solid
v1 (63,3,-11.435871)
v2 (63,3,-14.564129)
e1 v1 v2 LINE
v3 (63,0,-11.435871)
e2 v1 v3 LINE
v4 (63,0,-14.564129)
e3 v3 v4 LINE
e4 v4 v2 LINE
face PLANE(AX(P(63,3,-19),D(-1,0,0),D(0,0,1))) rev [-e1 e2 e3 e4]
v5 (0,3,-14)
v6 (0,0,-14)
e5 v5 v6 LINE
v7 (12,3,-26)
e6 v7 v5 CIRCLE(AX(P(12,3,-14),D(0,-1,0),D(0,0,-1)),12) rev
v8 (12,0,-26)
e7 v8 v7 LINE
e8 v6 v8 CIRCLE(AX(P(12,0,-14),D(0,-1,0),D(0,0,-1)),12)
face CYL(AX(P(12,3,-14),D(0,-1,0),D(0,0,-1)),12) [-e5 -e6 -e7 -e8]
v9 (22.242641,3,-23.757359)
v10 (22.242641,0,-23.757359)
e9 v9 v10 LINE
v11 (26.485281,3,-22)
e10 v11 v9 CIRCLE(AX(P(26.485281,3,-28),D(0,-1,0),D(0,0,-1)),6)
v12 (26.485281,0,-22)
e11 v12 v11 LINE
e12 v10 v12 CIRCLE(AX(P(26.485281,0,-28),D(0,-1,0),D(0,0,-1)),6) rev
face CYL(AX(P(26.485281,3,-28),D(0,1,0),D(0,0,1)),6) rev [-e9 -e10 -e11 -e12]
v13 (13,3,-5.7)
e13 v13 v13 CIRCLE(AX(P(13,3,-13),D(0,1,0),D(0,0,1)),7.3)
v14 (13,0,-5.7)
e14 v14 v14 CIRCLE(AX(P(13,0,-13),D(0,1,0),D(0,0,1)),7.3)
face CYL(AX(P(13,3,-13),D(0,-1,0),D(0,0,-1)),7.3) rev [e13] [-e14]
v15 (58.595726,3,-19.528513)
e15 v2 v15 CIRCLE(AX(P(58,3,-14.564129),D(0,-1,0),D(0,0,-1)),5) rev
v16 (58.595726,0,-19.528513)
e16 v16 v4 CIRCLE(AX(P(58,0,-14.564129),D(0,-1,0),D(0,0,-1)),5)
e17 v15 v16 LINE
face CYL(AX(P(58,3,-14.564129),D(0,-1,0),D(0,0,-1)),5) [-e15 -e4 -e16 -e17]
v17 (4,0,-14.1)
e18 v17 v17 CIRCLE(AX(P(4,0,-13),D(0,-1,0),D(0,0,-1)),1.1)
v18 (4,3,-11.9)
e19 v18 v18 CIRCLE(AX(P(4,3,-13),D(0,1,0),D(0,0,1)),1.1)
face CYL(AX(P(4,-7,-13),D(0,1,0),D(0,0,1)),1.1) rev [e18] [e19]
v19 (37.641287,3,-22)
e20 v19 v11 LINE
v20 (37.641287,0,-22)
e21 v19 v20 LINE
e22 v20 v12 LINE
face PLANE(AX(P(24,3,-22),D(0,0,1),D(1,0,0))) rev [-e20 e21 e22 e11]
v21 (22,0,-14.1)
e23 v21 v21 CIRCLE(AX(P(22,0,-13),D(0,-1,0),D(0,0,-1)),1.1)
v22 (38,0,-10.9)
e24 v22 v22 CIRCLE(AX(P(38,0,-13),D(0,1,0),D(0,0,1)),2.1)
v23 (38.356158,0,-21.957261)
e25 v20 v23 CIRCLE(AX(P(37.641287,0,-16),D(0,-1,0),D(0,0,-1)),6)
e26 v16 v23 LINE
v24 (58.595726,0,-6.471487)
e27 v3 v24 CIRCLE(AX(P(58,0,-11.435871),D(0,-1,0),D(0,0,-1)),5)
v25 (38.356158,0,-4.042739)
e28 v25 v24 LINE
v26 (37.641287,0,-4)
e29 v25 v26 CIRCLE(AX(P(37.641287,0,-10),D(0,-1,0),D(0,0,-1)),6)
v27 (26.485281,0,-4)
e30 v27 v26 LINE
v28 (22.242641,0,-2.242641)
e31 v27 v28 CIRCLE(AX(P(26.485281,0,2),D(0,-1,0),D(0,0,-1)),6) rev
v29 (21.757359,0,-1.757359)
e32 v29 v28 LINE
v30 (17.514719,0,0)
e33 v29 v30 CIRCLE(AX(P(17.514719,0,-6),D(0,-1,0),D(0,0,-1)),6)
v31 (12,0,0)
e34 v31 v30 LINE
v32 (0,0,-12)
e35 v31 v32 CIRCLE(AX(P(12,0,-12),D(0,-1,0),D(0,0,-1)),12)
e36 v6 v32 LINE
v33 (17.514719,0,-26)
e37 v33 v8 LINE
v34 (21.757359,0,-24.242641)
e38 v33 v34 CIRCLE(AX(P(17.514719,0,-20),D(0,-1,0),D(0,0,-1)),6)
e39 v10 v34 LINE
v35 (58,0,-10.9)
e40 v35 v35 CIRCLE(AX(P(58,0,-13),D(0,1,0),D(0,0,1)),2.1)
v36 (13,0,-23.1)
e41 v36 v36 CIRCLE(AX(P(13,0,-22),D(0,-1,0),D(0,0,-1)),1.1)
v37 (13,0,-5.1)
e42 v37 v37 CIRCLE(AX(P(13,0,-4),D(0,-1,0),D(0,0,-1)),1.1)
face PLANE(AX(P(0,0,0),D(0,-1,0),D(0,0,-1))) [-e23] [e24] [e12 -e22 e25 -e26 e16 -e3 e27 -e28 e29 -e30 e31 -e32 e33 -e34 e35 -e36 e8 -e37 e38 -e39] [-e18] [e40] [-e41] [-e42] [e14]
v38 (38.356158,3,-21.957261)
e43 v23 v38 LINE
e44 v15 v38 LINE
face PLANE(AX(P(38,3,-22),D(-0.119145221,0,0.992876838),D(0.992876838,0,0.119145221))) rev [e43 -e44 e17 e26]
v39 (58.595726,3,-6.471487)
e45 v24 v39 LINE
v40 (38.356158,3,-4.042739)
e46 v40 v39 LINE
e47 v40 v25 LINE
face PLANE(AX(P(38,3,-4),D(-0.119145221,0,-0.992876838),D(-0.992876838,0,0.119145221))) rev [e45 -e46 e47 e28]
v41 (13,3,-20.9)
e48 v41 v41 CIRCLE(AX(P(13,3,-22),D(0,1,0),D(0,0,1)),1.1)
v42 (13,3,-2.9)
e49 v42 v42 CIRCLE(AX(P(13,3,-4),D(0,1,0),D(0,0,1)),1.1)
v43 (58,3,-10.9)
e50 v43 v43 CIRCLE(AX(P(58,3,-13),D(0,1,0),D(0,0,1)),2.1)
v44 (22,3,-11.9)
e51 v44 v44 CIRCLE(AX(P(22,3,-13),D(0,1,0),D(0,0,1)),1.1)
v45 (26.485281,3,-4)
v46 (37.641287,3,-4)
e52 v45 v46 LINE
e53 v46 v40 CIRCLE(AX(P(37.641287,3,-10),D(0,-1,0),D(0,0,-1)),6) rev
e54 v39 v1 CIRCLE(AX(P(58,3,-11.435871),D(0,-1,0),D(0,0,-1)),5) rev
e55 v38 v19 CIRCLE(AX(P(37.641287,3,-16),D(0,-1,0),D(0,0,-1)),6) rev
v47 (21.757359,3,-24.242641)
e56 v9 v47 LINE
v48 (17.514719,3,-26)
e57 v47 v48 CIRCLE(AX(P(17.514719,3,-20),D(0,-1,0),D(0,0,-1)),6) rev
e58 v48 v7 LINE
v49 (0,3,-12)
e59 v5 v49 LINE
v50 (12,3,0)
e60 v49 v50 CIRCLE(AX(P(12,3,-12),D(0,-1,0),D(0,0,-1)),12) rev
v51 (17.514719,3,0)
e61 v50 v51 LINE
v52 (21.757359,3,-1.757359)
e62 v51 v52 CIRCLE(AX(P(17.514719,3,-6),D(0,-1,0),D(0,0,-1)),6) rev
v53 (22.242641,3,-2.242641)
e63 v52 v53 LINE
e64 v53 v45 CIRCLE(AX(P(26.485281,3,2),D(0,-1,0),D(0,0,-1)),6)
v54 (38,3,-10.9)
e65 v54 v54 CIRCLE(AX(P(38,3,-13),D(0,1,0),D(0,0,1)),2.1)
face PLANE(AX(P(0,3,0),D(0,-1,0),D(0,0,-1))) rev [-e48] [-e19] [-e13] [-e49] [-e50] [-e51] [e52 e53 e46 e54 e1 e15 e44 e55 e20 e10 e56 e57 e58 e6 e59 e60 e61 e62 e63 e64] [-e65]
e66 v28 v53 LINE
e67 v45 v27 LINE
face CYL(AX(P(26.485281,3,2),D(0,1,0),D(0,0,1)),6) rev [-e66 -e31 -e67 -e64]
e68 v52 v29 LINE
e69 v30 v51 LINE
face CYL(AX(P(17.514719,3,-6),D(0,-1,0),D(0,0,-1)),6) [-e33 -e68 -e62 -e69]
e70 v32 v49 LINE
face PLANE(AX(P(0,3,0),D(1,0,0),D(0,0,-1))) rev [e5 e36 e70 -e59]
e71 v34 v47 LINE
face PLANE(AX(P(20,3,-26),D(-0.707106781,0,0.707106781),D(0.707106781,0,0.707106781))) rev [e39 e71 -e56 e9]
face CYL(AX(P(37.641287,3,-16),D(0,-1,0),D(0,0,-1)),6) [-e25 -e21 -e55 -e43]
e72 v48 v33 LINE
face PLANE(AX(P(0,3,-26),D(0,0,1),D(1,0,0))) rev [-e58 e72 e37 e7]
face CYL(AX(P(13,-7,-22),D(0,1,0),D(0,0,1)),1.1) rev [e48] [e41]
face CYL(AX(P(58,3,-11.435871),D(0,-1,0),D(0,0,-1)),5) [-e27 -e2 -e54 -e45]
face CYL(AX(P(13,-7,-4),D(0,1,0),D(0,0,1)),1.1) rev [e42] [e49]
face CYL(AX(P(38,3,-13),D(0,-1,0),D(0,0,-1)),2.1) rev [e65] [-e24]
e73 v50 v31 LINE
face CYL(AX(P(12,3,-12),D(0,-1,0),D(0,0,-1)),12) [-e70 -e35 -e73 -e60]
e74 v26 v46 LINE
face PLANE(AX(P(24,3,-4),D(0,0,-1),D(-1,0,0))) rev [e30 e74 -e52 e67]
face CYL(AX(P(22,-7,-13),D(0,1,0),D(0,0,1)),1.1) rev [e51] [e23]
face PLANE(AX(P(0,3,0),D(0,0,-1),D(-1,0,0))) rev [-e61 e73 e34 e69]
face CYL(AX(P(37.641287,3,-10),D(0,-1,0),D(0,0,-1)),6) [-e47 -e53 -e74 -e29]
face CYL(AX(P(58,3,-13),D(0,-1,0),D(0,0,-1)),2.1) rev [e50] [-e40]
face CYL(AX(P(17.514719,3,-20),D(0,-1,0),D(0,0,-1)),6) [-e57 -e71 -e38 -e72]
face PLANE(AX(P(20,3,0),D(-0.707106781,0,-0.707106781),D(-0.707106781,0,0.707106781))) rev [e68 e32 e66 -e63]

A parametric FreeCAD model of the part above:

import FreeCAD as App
import Part
import Sketcher

V = App.Vector
Q = App.Units.Quantity


def edges_at(feature, points):
    """Names of the edges that pass closest to the given points."""
    edges = feature.Shape.Edges
    near = lambda p: min(range(len(edges)), key=lambda i: edges[i].distToShape(Part.Vertex(*p))[0])
    return sorted({f"Edge{near(p) + 1}" for p in points})

doc = App.newDocument("Part")
body = doc.addObject("PartDesign::Body", "Body")

# Sketch on XZ plane
sketch1 = body.newObject("Sketcher::SketchObject", "Sketch")
sketch1.AttachmentSupport = (doc.getObject("XZ_Plane"), [""])
sketch1.MapMode = "FlatFace"
sketch1.addGeometry(Part.LineSegment(V(24, -22, 0), V(20, -26, 0)), False)
sketch1.addGeometry(Part.LineSegment(V(20, -26, 0), V(0, -26, 0)), False)
sketch1.addGeometry(Part.LineSegment(V(0, -26, 0), V(0, 0, 0)), False)
sketch1.addGeometry(Part.LineSegment(V(0, 0, 0), V(20, 0, 0)), False)
sketch1.addGeometry(Part.LineSegment(V(20, 0, 0), V(24, -4, 0)), False)
sketch1.addGeometry(Part.LineSegment(V(24, -4, 0), V(38, -4, 0)), False)
sketch1.addGeometry(Part.LineSegment(V(38, -4, 0), V(63, -7, 0)), False)
sketch1.addGeometry(Part.LineSegment(V(63, -7, 0), V(63, -19, 0)), False)
sketch1.addGeometry(Part.LineSegment(V(63, -19, 0), V(38, -22, 0)), False)
sketch1.addGeometry(Part.LineSegment(V(38, -22, 0), V(24, -22, 0)), False)
sketch1.addGeometry(Part.Circle(V(58, -13, 0), V(0, 0, 1), 2.1), False)
sketch1.addGeometry(Part.Circle(V(38, -13, 0), V(0, 0, 1), 2.1), False)
sketch1.addGeometry(Part.Circle(V(13, -13, 0), V(0, 0, 1), 7.3), False)
sketch1.addConstraint(Sketcher.Constraint("Coincident", 0, 2, 1, 1))
sketch1.addConstraint(Sketcher.Constraint("Coincident", 1, 2, 2, 1))
sketch1.addConstraint(Sketcher.Constraint("Coincident", 2, 2, 3, 1))
sketch1.addConstraint(Sketcher.Constraint("Coincident", 3, 2, 4, 1))
sketch1.addConstraint(Sketcher.Constraint("Coincident", 4, 2, 5, 1))
sketch1.addConstraint(Sketcher.Constraint("Coincident", 5, 2, 6, 1))
sketch1.addConstraint(Sketcher.Constraint("Coincident", 6, 2, 7, 1))
sketch1.addConstraint(Sketcher.Constraint("Coincident", 7, 2, 8, 1))
sketch1.addConstraint(Sketcher.Constraint("Coincident", 8, 2, 9, 1))
sketch1.addConstraint(Sketcher.Constraint("Coincident", 9, 2, 0, 1))
sketch1.addConstraint(Sketcher.Constraint("Horizontal", 1))
sketch1.addConstraint(Sketcher.Constraint("Vertical", 2))
sketch1.addConstraint(Sketcher.Constraint("Horizontal", 3))
sketch1.addConstraint(Sketcher.Constraint("Horizontal", 5))
sketch1.addConstraint(Sketcher.Constraint("Vertical", 7))
sketch1.addConstraint(Sketcher.Constraint("Horizontal", 9))
sketch1.addConstraint(Sketcher.Constraint("Coincident", 2, 2, -1, 1))
sketch1.addConstraint(Sketcher.Constraint("Equal", 10, 11))
sketch1.addConstraint(Sketcher.Constraint("Perpendicular", 0, 4))
sketch1.addConstraint(Sketcher.Constraint("Horizontal", 10, 3, 11, 3))
sketch1.addConstraint(Sketcher.Constraint("Horizontal", 11, 3, 12, 3))
sketch1.addConstraint(Sketcher.Constraint("Vertical", 0, 2, 3, 2))
sketch1.addConstraint(Sketcher.Constraint("Vertical", 11, 3, 5, 2))
sketch1.addConstraint(Sketcher.Constraint("Vertical", 5, 2, 8, 2))
sketch1.addConstraint(Sketcher.Constraint("Vertical", 4, 2, 9, 2))
sketch1.addConstraint(Sketcher.Constraint("Equal", 0, 4))
sketch1.addConstraint(Sketcher.Constraint("Equal", 6, 8))
sketch1.addConstraint(Sketcher.Constraint("Diameter", 10, Q("4.2 mm")))
sketch1.addConstraint(Sketcher.Constraint("Diameter", 12, Q("14.6 mm")))
sketch1.addConstraint(Sketcher.Constraint("DistanceX", 1, 2, 1, 1, Q("20 mm")))
sketch1.addConstraint(Sketcher.Constraint("DistanceX", 5, 1, 5, 2, Q("14 mm")))
sketch1.addConstraint(Sketcher.Constraint("DistanceY", 2, 1, 2, 2, Q("26 mm")))
sketch1.addConstraint(Sketcher.Constraint("DistanceY", 7, 2, 7, 1, Q("12 mm")))
sketch1.addConstraint(Sketcher.Constraint("DistanceX", -1, 1, 10, 3, Q("58 mm")))
sketch1.addConstraint(Sketcher.Constraint("DistanceY", 10, 3, -1, 1, Q("13 mm")))
sketch1.addConstraint(Sketcher.Constraint("DistanceX", -1, 1, 11, 3, Q("38 mm")))
sketch1.addConstraint(Sketcher.Constraint("DistanceX", -1, 1, 12, 3, Q("13 mm")))
sketch1.addConstraint(Sketcher.Constraint("DistanceX", -1, 1, 6, 2, Q("63 mm")))
pad1 = body.newObject("PartDesign::Pad", "Pad")
pad1.Profile = sketch1
pad1.Length = 3
pad1.Reversed = True
doc.recompute()

fillet = body.newObject("PartDesign::Fillet", "Fillet")
fillet.Base = (pad1, edges_at(pad1, [(0, 1.5, 0), (0, 1.5, -26)]))
fillet.Radius = 12
doc.recompute()

fillet2 = body.newObject("PartDesign::Fillet", "Fillet001")
fillet2.Base = (fillet, edges_at(fillet, [
    (20, 1.5, -26),
    (24, 1.5, -22),
    (38, 1.5, -22),
    (38, 1.5, -4),
    (24, 1.5, -4),
    (20, 1.5, 0),
]))
fillet2.Radius = 6
doc.recompute()

fillet3 = body.newObject("PartDesign::Fillet", "Fillet002")
fillet3.Base = (fillet2, edges_at(fillet2, [(63, 1.5, -19), (63, 1.5, -7)]))
fillet3.Radius = 5

# Sketch on XZ plane
sketch2 = body.newObject("Sketcher::SketchObject", "Sketch001")
sketch2.AttachmentSupport = (doc.getObject("XZ_Plane"), [""])
sketch2.MapMode = "FlatFace"
sketch2.AttachmentOffset = App.Placement(V(0, 0, -3), App.Rotation())
sketch2.addGeometry(Part.Circle(V(22, -13, 0), V(0, 0, 1), 1.1), False)
sketch2.addGeometry(Part.Circle(V(13, -4, 0), V(0, 0, 1), 1.1), False)
sketch2.addGeometry(Part.Circle(V(4, -13, 0), V(0, 0, 1), 1.1), False)
sketch2.addGeometry(Part.Circle(V(13, -22, 0), V(0, 0, 1), 1.1), False)
sketch2.addConstraint(Sketcher.Constraint("Equal", 0, 1))
sketch2.addConstraint(Sketcher.Constraint("Equal", 1, 2))
sketch2.addConstraint(Sketcher.Constraint("Equal", 2, 3))
sketch2.addConstraint(Sketcher.Constraint("Horizontal", 0, 3, 2, 3))
sketch2.addConstraint(Sketcher.Constraint("Vertical", 1, 3, 3, 3))
sketch2.addConstraint(Sketcher.Constraint("Diameter", 0, Q("2.2 mm")))
sketch2.addConstraint(Sketcher.Constraint("DistanceX", -1, 1, 0, 3, Q("22 mm")))
sketch2.addConstraint(Sketcher.Constraint("DistanceY", 0, 3, -1, 1, Q("13 mm")))
sketch2.addConstraint(Sketcher.Constraint("DistanceX", -1, 1, 1, 3, Q("13 mm")))
sketch2.addConstraint(Sketcher.Constraint("DistanceY", 1, 3, -1, 1, Q("4 mm")))
sketch2.addConstraint(Sketcher.Constraint("DistanceX", -1, 1, 2, 3, Q("4 mm")))
sketch2.addConstraint(Sketcher.Constraint("DistanceY", 3, 3, -1, 1, Q("22 mm")))
pocket1 = body.newObject("PartDesign::Pocket", "Pocket")
pocket1.Profile = sketch2
pocket1.Length = 10
pocket1.Reversed = True

doc.recompute()
